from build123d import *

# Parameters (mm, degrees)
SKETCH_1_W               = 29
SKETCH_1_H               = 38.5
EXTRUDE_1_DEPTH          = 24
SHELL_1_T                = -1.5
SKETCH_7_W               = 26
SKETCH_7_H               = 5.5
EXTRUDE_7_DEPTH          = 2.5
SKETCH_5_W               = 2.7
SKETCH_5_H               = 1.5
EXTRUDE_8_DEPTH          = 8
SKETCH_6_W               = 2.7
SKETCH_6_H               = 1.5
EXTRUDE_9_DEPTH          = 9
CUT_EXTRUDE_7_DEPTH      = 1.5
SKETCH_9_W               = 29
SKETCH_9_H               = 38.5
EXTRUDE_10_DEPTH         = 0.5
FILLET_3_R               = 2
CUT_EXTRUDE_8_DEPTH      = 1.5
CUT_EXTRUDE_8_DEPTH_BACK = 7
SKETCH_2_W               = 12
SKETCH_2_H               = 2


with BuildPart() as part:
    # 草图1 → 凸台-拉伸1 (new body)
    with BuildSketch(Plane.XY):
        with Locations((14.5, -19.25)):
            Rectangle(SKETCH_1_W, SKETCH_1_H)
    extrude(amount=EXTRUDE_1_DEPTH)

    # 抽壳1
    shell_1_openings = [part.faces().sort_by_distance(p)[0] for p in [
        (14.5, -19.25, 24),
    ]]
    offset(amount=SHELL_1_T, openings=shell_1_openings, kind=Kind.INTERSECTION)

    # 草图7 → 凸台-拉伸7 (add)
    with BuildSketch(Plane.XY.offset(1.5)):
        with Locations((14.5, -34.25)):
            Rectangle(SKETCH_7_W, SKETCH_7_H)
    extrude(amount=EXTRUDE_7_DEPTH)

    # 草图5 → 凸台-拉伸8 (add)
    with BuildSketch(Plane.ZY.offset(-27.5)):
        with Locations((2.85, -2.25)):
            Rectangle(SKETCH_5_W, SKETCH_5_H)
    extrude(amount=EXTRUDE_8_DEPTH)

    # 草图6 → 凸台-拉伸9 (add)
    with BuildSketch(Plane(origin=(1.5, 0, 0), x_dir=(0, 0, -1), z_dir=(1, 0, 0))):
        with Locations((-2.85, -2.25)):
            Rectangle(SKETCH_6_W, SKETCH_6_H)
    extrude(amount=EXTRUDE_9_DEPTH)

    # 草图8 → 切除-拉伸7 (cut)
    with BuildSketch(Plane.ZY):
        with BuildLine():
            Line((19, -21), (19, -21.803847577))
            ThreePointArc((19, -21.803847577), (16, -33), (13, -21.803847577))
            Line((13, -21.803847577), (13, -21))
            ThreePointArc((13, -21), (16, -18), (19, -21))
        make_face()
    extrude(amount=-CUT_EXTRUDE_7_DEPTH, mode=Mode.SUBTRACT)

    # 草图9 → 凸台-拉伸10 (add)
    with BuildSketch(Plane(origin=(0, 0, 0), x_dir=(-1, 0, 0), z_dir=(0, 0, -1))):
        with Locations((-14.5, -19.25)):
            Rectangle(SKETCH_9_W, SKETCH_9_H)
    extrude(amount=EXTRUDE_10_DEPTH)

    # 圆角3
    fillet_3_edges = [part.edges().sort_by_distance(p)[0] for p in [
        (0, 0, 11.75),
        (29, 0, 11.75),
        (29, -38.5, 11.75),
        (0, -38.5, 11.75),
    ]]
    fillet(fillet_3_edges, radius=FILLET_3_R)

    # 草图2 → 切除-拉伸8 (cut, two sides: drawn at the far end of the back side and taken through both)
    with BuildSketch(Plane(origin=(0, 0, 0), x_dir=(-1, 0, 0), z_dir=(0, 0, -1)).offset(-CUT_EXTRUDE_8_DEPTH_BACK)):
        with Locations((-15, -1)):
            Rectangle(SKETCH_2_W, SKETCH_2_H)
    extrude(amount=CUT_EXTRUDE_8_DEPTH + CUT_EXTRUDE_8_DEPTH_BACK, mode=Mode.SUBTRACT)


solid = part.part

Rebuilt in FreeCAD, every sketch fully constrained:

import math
import FreeCAD as App
import Part
import Sketcher

V = App.Vector


def edges_at(feature, points):
    """Names of the edges that pass closest to the given points."""
    edges = feature.Shape.Edges
    near = lambda p: min(range(len(edges)), key=lambda i: edges[i].distToShape(Part.Vertex(*p))[0])
    return sorted({f"Edge{near(p) + 1}" for p in points})


def faces_at(feature, points):
    """Names of the faces that lie closest to the given points."""
    faces = feature.Shape.Faces
    near = lambda p: min(range(len(faces)), key=lambda i: faces[i].distToShape(Part.Vertex(*p))[0])
    return sorted({f"Face{near(p) + 1}" for p in points})


def add_polygon(sketch, points):
    """Adds a closed chain of lines whose ends are joined by coincident constraints."""
    first, n = sketch.GeometryCount, len(points)
    for a, b in zip(points, points[1:] + points[:1]):
        sketch.addGeometry(Part.LineSegment(App.Vector(*a, 0), App.Vector(*b, 0)), False)
    for i in range(n):
        sketch.addConstraint(Sketcher.Constraint("Coincident", first + i, 2, first + (i + 1) % n, 1))

doc = App.newDocument("Part")
body = doc.addObject("PartDesign::Body", "Body")

# Sketch on XY plane
sketch1 = body.newObject("Sketcher::SketchObject", "Sketch")
sketch1.AttachmentSupport = (doc.getObject("XY_Plane"), [""])
sketch1.MapMode = "FlatFace"
add_polygon(sketch1, [(0, 0), (0, -38), (29, -38), (29, 0)])  # lines 0-3
sketch1.addConstraint(Sketcher.Constraint("Vertical", 0))
sketch1.addConstraint(Sketcher.Constraint("Horizontal", 1))
sketch1.addConstraint(Sketcher.Constraint("Vertical", 2))
sketch1.addConstraint(Sketcher.Constraint("Horizontal", 3))
sketch1.addConstraint(Sketcher.Constraint("Coincident", 3, 2, -1, 1))
sketch1.addConstraint(Sketcher.Constraint("DistanceX", 1, 1, 1, 2, 29.0))
sketch1.addConstraint(Sketcher.Constraint("DistanceY", 0, 2, 0, 1, 38.5))
pad1 = body.newObject("PartDesign::Pad", "Pad")
pad1.Profile = sketch1
pad1.Length = 24
doc.recompute()

thickness = body.newObject("PartDesign::Thickness", "Thickness")
thickness.Base = (pad1, faces_at(pad1, [(14.5, -19.25, 24)]))
thickness.Value = 1.5
thickness.Reversed = True
thickness.Join = "Intersection"

# Sketch on XY plane
sketch2 = body.newObject("Sketcher::SketchObject", "Sketch001")
sketch2.AttachmentSupport = (doc.getObject("XY_Plane"), [""])
sketch2.MapMode = "FlatFace"
sketch2.AttachmentOffset = App.Placement(V(0, 0, 1.5), App.Rotation())
add_polygon(sketch2, [(2, -32), (2, -37), (28, -37), (28, -32)])  # lines 0-3
sketch2.addConstraint(Sketcher.Constraint("Vertical", 0))
sketch2.addConstraint(Sketcher.Constraint("Horizontal", 1))
sketch2.addConstraint(Sketcher.Constraint("Vertical", 2))
sketch2.addConstraint(Sketcher.Constraint("Horizontal", 3))
sketch2.addConstraint(Sketcher.Constraint("DistanceX", 1, 1, 1, 2, 26.0))
sketch2.addConstraint(Sketcher.Constraint("DistanceY", 0, 2, 0, 1, 5.5))
sketch2.addConstraint(Sketcher.Constraint("DistanceY", 0, 2, -1, 1, 37.0))
sketch2.addConstraint(Sketcher.Constraint("DistanceX", -1, 1, 0, 2, 1.5))
pad2 = body.newObject("PartDesign::Pad", "Pad001")
pad2.Profile = sketch2
pad2.Length = 2.5

# Sketch on YZ plane
sketch3 = body.newObject("Sketcher::SketchObject", "Sketch002")
sketch3.AttachmentSupport = (doc.getObject("YZ_Plane"), [""])
sketch3.MapMode = "FlatFace"
sketch3.AttachmentOffset = App.Placement(V(0, 0, 27.5), App.Rotation())
add_polygon(sketch3, [(-1.5, 1.5), (-3, 1.5), (-3, 4.2), (-1.5, 4.2)])  # lines 0-3
sketch3.addConstraint(Sketcher.Constraint("Horizontal", 0))
sketch3.addConstraint(Sketcher.Constraint("Vertical", 1))
sketch3.addConstraint(Sketcher.Constraint("Horizontal", 2))
sketch3.addConstraint(Sketcher.Constraint("Vertical", 3))
sketch3.addConstraint(Sketcher.Constraint("DistanceX", 0, 2, 0, 1, 1.5))
sketch3.addConstraint(Sketcher.Constraint("DistanceY", 1, 1, 1, 2, 2.7))
sketch3.addConstraint(Sketcher.Constraint("DistanceX", 0, 2, -1, 1, 3.0))
sketch3.addConstraint(Sketcher.Constraint("DistanceY", -1, 1, 0, 2, 1.5))
pad3 = body.newObject("PartDesign::Pad", "Pad002")
pad3.Profile = sketch3
pad3.Length = 8
pad3.Reversed = True

# Sketch on YZ plane
sketch4 = body.newObject("Sketcher::SketchObject", "Sketch003")
sketch4.AttachmentSupport = (doc.getObject("YZ_Plane"), [""])
sketch4.MapMode = "FlatFace"
sketch4.AttachmentOffset = App.Placement(V(0, 0, 1.5), App.Rotation())
add_polygon(sketch4, [(-1.5, 4.2), (-3, 4.2), (-3, 1.5), (-1.5, 1.5)])  # lines 0-3
sketch4.addConstraint(Sketcher.Constraint("Horizontal", 0))
sketch4.addConstraint(Sketcher.Constraint("Vertical", 1))
sketch4.addConstraint(Sketcher.Constraint("Horizontal", 2))
sketch4.addConstraint(Sketcher.Constraint("Vertical", 3))
sketch4.addConstraint(Sketcher.Constraint("DistanceX", 0, 2, 0, 1, 1.5))
sketch4.addConstraint(Sketcher.Constraint("DistanceY", 1, 2, 1, 1, 2.7))
sketch4.addConstraint(Sketcher.Constraint("DistanceX", 0, 2, -1, 1, 3.0))
sketch4.addConstraint(Sketcher.Constraint("DistanceY", -1, 1, 0, 2, 4.2))
pad4 = body.newObject("PartDesign::Pad", "Pad003")
pad4.Profile = sketch4
pad4.Length = 9

# Sketch on YZ plane
sketch5 = body.newObject("Sketcher::SketchObject", "Sketch004")
sketch5.AttachmentSupport = (doc.getObject("YZ_Plane"), [""])
sketch5.MapMode = "FlatFace"
sketch5.addGeometry(Part.LineSegment(V(-21.8, 19, 0), V(-21, 19, 0)), False)
sketch5.addGeometry(Part.ArcOfCircle(Part.Circle(V(-21, 16, 0), V(0, 0, 1), 3), math.radians(-90), math.radians(90)), False)
sketch5.addGeometry(Part.LineSegment(V(-21, 13, 0), V(-21.8, 13, 0)), False)
sketch5.addGeometry(Part.ArcOfCircle(Part.Circle(V(-27, 16, 0), V(0, 0, 1), 6), math.radians(30), math.radians(330)), False)
sketch5.addConstraint(Sketcher.Constraint("Tangent", 0, 2, 1, 2))
sketch5.addConstraint(Sketcher.Constraint("Tangent", 1, 1, 2, 1))
sketch5.addConstraint(Sketcher.Constraint("Coincident", 2, 2, 3, 2))
sketch5.addConstraint(Sketcher.Constraint("Coincident", 3, 1, 0, 1))
sketch5.addConstraint(Sketcher.Constraint("Horizontal", 0))
sketch5.addConstraint(Sketcher.Constraint("Horizontal", 2))
sketch5.addConstraint(Sketcher.Constraint("Horizontal", 1, 3, 3, 3))
sketch5.addConstraint(Sketcher.Constraint("Radius", 1, 3.0))
sketch5.addConstraint(Sketcher.Constraint("Radius", 3, 6.0))
sketch5.addConstraint(Sketcher.Constraint("DistanceX", 1, 3, -1, 1, 21.0))
sketch5.addConstraint(Sketcher.Constraint("DistanceY", -1, 1, 1, 3, 16.0))
sketch5.addConstraint(Sketcher.Constraint("DistanceX", 3, 3, -1, 1, 27.0))
pocket1 = body.newObject("PartDesign::Pocket", "Pocket")
pocket1.Profile = sketch5
pocket1.Length = 1.5
pocket1.Reversed = True

# Sketch on XY plane
sketch6 = body.newObject("Sketcher::SketchObject", "Sketch005")
sketch6.AttachmentSupport = (doc.getObject("XY_Plane"), [""])
sketch6.MapMode = "FlatFace"
add_polygon(sketch6, [(29, 0), (29, -38), (0, -38), (0, 0)])  # lines 0-3
sketch6.addConstraint(Sketcher.Constraint("Vertical", 0))
sketch6.addConstraint(Sketcher.Constraint("Horizontal", 1))
sketch6.addConstraint(Sketcher.Constraint("Vertical", 2))
sketch6.addConstraint(Sketcher.Constraint("Horizontal", 3))
sketch6.addConstraint(Sketcher.Constraint("Coincident", 2, 2, -1, 1))
sketch6.addConstraint(Sketcher.Constraint("DistanceX", 1, 2, 1, 1, 29.0))
sketch6.addConstraint(Sketcher.Constraint("DistanceY", 0, 2, 0, 1, 38.5))
pad5 = body.newObject("PartDesign::Pad", "Pad004")
pad5.Profile = sketch6
pad5.Length = 0.5
pad5.Reversed = True
doc.recompute()

fillet = body.newObject("PartDesign::Fillet", "Fillet")
fillet.Base = (pad5, edges_at(pad5, [
    (0, 0, 11.75),
    (29, 0, 11.75),
    (29, -38.5, 11.75),
    (0, -38.5, 11.75),
]))
fillet.Radius = 2

# Sketch on XY plane
sketch7 = body.newObject("Sketcher::SketchObject", "Sketch006")
sketch7.AttachmentSupport = (doc.getObject("XY_Plane"), [""])
sketch7.MapMode = "FlatFace"
add_polygon(sketch7, [(21, 0), (21, -2), (9, -2), (9, 0)])  # lines 0-3
sketch7.addConstraint(Sketcher.Constraint("Vertical", 0))
sketch7.addConstraint(Sketcher.Constraint("Horizontal", 1))
sketch7.addConstraint(Sketcher.Constraint("Vertical", 2))
sketch7.addConstraint(Sketcher.Constraint("Horizontal", 3))
sketch7.addConstraint(Sketcher.Constraint("PointOnObject", 2, 2, -1))
sketch7.addConstraint(Sketcher.Constraint("DistanceX", 1, 2, 1, 1, 12.0))
sketch7.addConstraint(Sketcher.Constraint("DistanceY", 0, 2, 0, 1, 2.0))
sketch7.addConstraint(Sketcher.Constraint("DistanceX", -1, 1, 0, 2, 21.0))
pocket2 = body.newObject("PartDesign::Pocket", "Pocket001")
pocket2.Profile = sketch7
pocket2.Type = "TwoLengths"
pocket2.Length = 1.5
pocket2.Length2 = 7

doc.recompute()
